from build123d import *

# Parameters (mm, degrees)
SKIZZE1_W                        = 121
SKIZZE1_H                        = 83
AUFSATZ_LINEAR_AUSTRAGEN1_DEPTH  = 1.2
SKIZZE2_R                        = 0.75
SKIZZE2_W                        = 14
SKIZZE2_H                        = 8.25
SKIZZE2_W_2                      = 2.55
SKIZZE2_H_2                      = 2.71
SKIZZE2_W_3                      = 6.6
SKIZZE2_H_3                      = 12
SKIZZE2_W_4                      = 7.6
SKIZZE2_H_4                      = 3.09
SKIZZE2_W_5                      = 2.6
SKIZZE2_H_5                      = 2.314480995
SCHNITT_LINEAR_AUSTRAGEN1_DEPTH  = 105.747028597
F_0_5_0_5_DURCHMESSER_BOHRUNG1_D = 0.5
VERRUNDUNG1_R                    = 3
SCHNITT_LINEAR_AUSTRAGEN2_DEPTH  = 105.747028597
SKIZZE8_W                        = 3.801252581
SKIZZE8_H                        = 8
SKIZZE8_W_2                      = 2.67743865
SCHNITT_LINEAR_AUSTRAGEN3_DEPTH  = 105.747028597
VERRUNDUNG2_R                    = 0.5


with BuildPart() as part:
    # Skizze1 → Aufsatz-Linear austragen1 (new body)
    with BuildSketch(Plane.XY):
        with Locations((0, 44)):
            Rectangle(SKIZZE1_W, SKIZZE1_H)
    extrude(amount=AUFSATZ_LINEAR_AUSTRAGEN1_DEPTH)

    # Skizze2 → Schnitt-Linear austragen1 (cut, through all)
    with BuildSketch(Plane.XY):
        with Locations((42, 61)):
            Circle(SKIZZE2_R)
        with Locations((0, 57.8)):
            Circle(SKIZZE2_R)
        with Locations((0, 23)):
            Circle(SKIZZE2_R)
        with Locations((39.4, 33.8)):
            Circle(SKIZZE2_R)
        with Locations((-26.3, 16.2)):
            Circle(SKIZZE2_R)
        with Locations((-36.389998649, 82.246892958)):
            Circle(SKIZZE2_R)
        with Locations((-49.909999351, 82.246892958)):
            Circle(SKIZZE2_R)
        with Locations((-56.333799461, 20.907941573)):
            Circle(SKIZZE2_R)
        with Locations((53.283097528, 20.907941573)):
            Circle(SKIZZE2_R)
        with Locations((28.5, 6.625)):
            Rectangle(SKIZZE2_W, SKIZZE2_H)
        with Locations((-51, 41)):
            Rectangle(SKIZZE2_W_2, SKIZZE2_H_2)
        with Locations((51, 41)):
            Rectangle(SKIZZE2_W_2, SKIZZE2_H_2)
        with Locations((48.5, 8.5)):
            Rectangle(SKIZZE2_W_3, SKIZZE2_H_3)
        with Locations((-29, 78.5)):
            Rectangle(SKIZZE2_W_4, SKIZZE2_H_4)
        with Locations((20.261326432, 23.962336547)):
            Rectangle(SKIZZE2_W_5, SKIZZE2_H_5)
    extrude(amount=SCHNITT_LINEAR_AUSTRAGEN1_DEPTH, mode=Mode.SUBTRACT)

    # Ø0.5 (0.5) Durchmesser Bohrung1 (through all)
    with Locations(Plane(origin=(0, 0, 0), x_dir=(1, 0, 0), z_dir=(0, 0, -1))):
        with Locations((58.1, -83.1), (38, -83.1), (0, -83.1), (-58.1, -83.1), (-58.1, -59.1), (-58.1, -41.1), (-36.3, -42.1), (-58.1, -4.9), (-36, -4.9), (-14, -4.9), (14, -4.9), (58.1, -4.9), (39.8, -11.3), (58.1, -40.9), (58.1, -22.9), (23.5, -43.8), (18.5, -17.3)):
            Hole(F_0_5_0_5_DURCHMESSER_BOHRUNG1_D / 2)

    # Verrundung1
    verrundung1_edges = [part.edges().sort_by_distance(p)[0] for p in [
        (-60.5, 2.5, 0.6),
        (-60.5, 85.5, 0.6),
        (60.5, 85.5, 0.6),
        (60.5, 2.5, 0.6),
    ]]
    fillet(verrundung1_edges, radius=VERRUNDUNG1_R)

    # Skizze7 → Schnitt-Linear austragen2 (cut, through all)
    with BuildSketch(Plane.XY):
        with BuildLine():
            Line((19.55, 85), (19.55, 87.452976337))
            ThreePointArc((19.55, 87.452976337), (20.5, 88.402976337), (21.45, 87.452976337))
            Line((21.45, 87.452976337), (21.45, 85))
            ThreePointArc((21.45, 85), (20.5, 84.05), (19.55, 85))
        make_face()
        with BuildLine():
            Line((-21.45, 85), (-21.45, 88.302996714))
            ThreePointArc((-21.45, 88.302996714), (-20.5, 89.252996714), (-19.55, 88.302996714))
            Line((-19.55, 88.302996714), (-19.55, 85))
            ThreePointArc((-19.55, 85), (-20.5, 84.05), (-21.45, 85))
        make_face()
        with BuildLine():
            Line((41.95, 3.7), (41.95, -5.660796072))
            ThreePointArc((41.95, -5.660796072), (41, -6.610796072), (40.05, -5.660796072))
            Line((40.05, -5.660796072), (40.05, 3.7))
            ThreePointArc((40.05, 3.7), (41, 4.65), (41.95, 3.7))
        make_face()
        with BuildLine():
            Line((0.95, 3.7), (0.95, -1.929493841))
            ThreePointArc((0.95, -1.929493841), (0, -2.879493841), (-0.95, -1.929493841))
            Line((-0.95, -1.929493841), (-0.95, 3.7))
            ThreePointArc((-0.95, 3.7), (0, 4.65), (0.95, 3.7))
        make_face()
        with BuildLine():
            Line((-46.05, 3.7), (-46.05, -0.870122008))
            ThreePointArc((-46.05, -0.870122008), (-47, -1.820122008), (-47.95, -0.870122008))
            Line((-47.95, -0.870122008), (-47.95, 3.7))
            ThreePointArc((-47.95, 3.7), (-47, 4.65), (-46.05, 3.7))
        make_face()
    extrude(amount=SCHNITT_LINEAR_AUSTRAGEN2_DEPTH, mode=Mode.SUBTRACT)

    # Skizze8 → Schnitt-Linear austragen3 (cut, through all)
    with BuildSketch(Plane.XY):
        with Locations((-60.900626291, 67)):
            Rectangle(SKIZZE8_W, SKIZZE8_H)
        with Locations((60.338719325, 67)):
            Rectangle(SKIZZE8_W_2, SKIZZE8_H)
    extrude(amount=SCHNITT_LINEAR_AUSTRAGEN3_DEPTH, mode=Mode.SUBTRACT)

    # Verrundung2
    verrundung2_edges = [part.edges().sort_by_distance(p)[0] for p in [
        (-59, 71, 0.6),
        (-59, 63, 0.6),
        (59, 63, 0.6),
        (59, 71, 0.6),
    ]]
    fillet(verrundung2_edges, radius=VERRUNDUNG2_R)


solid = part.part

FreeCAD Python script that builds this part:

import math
import FreeCAD as App
import Part
import Sketcher
Q = App.Units.Quantity


def edges_at(feature, points):
    """Names of the edges that pass closest to the given points."""
    edges = feature.Shape.Edges
    near = lambda p: min(range(len(edges)), key=lambda i: edges[i].distToShape(Part.Vertex(*p))[0])
    return sorted({f"Edge{near(p) + 1}" for p in points})


def add_polygon(sketch, points):
    """Adds a closed chain of lines whose ends are joined by coincident constraints."""
    first, n = sketch.GeometryCount, len(points)
    for a, b in zip(points, points[1:] + points[:1]):
        sketch.addGeometry(Part.LineSegment(App.Vector(*a, 0), App.Vector(*b, 0)), False)
    for i in range(n):
        sketch.addConstraint(Sketcher.Constraint("Coincident", first + i, 2, first + (i + 1) % n, 1))

doc = App.newDocument("Part")
body = doc.addObject("PartDesign::Body", "Body")

# Sketch on XY plane
sketch1 = doc.addObject("Sketcher::SketchObject", "Sketch")
body.addObject(sketch1)
sketch1.AttachmentSupport = (doc.XY_Plane, [""])
sketch1.MapMode = "FlatFace"
add_polygon(sketch1, [(-60.5, 85.5), (-60.5, 2.5), (60.5, 2.5), (60.5, 85.5)])  # lines 0-3
sketch1.addConstraint([
    Sketcher.Constraint("Vertical", 0),
    Sketcher.Constraint("Horizontal", 1),
    Sketcher.Constraint("Vertical", 2),
    Sketcher.Constraint("Horizontal", 3),
    Sketcher.Constraint("DistanceX", 1, 1, 1, 2, Q("121 mm")),
    Sketcher.Constraint("DistanceY", 0, 2, 0, 1, Q("83 mm")),
    Sketcher.Constraint("DistanceX", 0, 2, -1, 1, Q("60.5 mm")),
    Sketcher.Constraint("DistanceY", -1, 1, 0, 2, Q("2.5 mm")),
])
pad1 = doc.addObject("PartDesign::Pad", "Pad")
body.addObject(pad1)
pad1.Profile = sketch1
pad1.Length = 1.2

# Sketch on XY plane
sketch2 = doc.addObject("Sketcher::SketchObject", "Sketch001")
body.addObject(sketch2)
sketch2.AttachmentSupport = (doc.XY_Plane, [""])
sketch2.MapMode = "FlatFace"
sketch2.addGeometry(Part.Circle(App.Vector(42, 61, 0), App.Vector(0, 0, 1), 0.75), False)  # 0
sketch2.addGeometry(Part.Circle(App.Vector(0, 57.8, 0), App.Vector(0, 0, 1), 0.75), False)  # 1
sketch2.addGeometry(Part.Circle(App.Vector(0, 23, 0), App.Vector(0, 0, 1), 0.75), False)  # 2
sketch2.addGeometry(Part.Circle(App.Vector(39.4, 33.8, 0), App.Vector(0, 0, 1), 0.75), False)  # 3
sketch2.addGeometry(Part.Circle(App.Vector(-26.3, 16.2, 0), App.Vector(0, 0, 1), 0.75), False)  # 4
sketch2.addGeometry(Part.Circle(App.Vector(-36.389999, 82.246893, 0), App.Vector(0, 0, 1), 0.75), False)  # 5
sketch2.addGeometry(Part.Circle(App.Vector(-49.909999, 82.246893, 0), App.Vector(0, 0, 1), 0.75), False)  # 6
sketch2.addGeometry(Part.Circle(App.Vector(-56.333799, 20.907942, 0), App.Vector(0, 0, 1), 0.75), False)  # 7
sketch2.addGeometry(Part.Circle(App.Vector(53.283098, 20.907942, 0), App.Vector(0, 0, 1), 0.75), False)  # 8
add_polygon(sketch2, [(21.5, 10.75), (21.5, 2.5), (35.5, 2.5), (35.5, 10.75)])  # lines 9-12
add_polygon(sketch2, [(-52.275, 42.355), (-52.275, 39.645), (-49.725, 39.645), (-49.725, 42.355)])  # lines 13-16
add_polygon(sketch2, [(49.725, 42.355), (49.725, 39.645), (52.275, 39.645), (52.275, 42.355)])  # lines 17-20
add_polygon(sketch2, [(45.2, 14.5), (45.2, 2.5), (51.8, 2.5), (51.8, 14.5)])  # lines 21-24
add_polygon(sketch2, [(-32.8, 80.045), (-32.8, 76.955), (-25.2, 76.955), (-25.2, 80.045)])  # lines 25-28
add_polygon(sketch2, [(18.961326, 25.119577), (18.961326, 22.805096), (21.561326, 22.805096), (21.561326, 25.119577)])  # lines 29-32
sketch2.addConstraint([
    Sketcher.Constraint("Vertical", 9),
    Sketcher.Constraint("Horizontal", 10),
    Sketcher.Constraint("Vertical", 11),
    Sketcher.Constraint("Horizontal", 12),
    Sketcher.Constraint("Vertical", 13),
    Sketcher.Constraint("Horizontal", 14),
    Sketcher.Constraint("Vertical", 15),
    Sketcher.Constraint("Horizontal", 16),
    Sketcher.Constraint("Vertical", 17),
    Sketcher.Constraint("Horizontal", 18),
    Sketcher.Constraint("Vertical", 19),
    Sketcher.Constraint("Horizontal", 20),
    Sketcher.Constraint("Vertical", 21),
    Sketcher.Constraint("Horizontal", 22),
    Sketcher.Constraint("Vertical", 23),
    Sketcher.Constraint("Horizontal", 24),
    Sketcher.Constraint("Vertical", 25),
    Sketcher.Constraint("Horizontal", 26),
    Sketcher.Constraint("Vertical", 27),
    Sketcher.Constraint("Horizontal", 28),
    Sketcher.Constraint("Vertical", 29),
    Sketcher.Constraint("Horizontal", 30),
    Sketcher.Constraint("Vertical", 31),
    Sketcher.Constraint("Horizontal", 32),
    Sketcher.Constraint("Equal", 0, 1),
    Sketcher.Constraint("Equal", 1, 2),
    Sketcher.Constraint("Equal", 2, 3),
    Sketcher.Constraint("Equal", 3, 4),
    Sketcher.Constraint("Equal", 4, 5),
    Sketcher.Constraint("Equal", 5, 6),
    Sketcher.Constraint("Equal", 6, 7),
    Sketcher.Constraint("Equal", 7, 8),
    Sketcher.Constraint("Symmetric", 14, 2, 17, 2, -2),
    Sketcher.Constraint("Symmetric", 16, 2, 19, 2, -2),
    Sketcher.Constraint("PointOnObject", 1, 3, -2),
    Sketcher.Constraint("PointOnObject", 2, 3, -2),
    Sketcher.Constraint("Horizontal", 5, 3, 6, 3),
    Sketcher.Constraint("Horizontal", 7, 3, 8, 3),
    Sketcher.Constraint("Horizontal", 10, 2, 21, 2),
    Sketcher.Constraint("Diameter", 0, Q("1.5 mm")),
    Sketcher.Constraint("DistanceX", 10, 1, 10, 2, Q("14 mm")),
    Sketcher.Constraint("DistanceY", 21, 2, 21, 1, Q("12 mm")),
    Sketcher.Constraint("DistanceX", 22, 1, 22, 2, Q("6.6 mm")),
    Sketcher.Constraint("DistanceX", 26, 1, 26, 2, Q("7.6 mm")),
    Sketcher.Constraint("DistanceX", 30, 1, 30, 2, Q("2.6 mm")),
    Sketcher.Constraint("DistanceX", -1, 1, 0, 3, Q("42 mm")),
    Sketcher.Constraint("DistanceY", -1, 1, 0, 3, Q("61 mm")),
    Sketcher.Constraint("DistanceY", -1, 1, 2, 3, Q("23 mm")),
    Sketcher.Constraint("DistanceY", 3, 3, 1, 3, Q("24 mm")),
    Sketcher.Constraint("DistanceX", 14, 1, 14, 2, Q("2.55 mm")),
    Sketcher.Constraint("DistanceY", 9, 2, 9, 1, Q("8.25 mm")),
    Sketcher.Constraint("DistanceY", 13, 2, 13, 1, Q("2.71 mm")),
    Sketcher.Constraint("DistanceY", 25, 2, 25, 1, Q("3.09 mm")),
    Sketcher.Constraint("DistanceY", -1, 1, 1, 3, Q("57.8 mm")),
    Sketcher.Constraint("DistanceX", -1, 1, 3, 3, Q("39.4 mm")),
    Sketcher.Constraint("DistanceX", 4, 3, -1, 1, Q("26.3 mm")),
    Sketcher.Constraint("DistanceY", -1, 1, 4, 3, Q("16.2 mm")),
    Sketcher.Constraint("DistanceX", -1, 1, 9, 2, Q("21.5 mm")),
    Sketcher.Constraint("DistanceY", -1, 1, 9, 2, Q("2.5 mm")),
    Sketcher.Constraint("DistanceX", -1, 1, 21, 2, Q("45.2 mm")),
    Sketcher.Constraint("DistanceX", 25, 2, -1, 1, Q("32.8 mm")),
    Sketcher.Constraint("DistanceY", 15, 2, 25, 2, Q("34.6 mm")),
    Sketcher.Constraint("DistanceX", 5, 3, -1, 1, Q("36.389999 mm")),
    Sketcher.Constraint("DistanceX", 6, 3, -1, 1, Q("49.909999 mm")),
    Sketcher.Constraint("DistanceX", 13, 2, -1, 1, Q("52.275 mm")),
    Sketcher.Constraint("DistanceY", -1, 1, 13, 2, Q("39.645 mm")),
    Sketcher.Constraint("DistanceY", 29, 2, 29, 1, Q("2.314481 mm")),
    Sketcher.Constraint("DistanceX", 7, 3, -1, 1, Q("56.333799 mm")),
    Sketcher.Constraint("DistanceY", -1, 1, 7, 3, Q("20.907942 mm")),
    Sketcher.Constraint("DistanceY", 7, 3, 6, 3, Q("61.338951 mm")),
    Sketcher.Constraint("DistanceX", -1, 1, 8, 3, Q("53.283098 mm")),
    Sketcher.Constraint("DistanceX", -1, 1, 29, 2, Q("18.961326 mm")),
    Sketcher.Constraint("DistanceY", -1, 1, 29, 2, Q("22.805096 mm")),
])
pocket1 = doc.addObject("PartDesign::Pocket", "Pocket")
body.addObject(pocket1)
pocket1.Profile = sketch2
pocket1.Type = "ThroughAll"
pocket1.Reversed = True

# Sketch on XY plane
sketch3 = doc.addObject("Sketcher::SketchObject", "Sketch002")
body.addObject(sketch3)
sketch3.AttachmentSupport = (doc.XY_Plane, [""])
sketch3.MapMode = "FlatFace"
sketch3.addGeometry([
    Part.Circle(App.Vector(58.1, 83.1, 0), App.Vector(0, 0, 1), 0.25),  # 0
    Part.Circle(App.Vector(38, 83.1, 0), App.Vector(0, 0, 1), 0.25),  # 1
    Part.Circle(App.Vector(0, 83.1, 0), App.Vector(0, 0, 1), 0.25),  # 2
    Part.Circle(App.Vector(-58.1, 83.1, 0), App.Vector(0, 0, 1), 0.25),  # 3
    Part.Circle(App.Vector(-58.1, 59.1, 0), App.Vector(0, 0, 1), 0.25),  # 4
    Part.Circle(App.Vector(-58.1, 41.1, 0), App.Vector(0, 0, 1), 0.25),  # 5
    Part.Circle(App.Vector(-36.3, 42.1, 0), App.Vector(0, 0, 1), 0.25),  # 6
    Part.Circle(App.Vector(-58.1, 4.9, 0), App.Vector(0, 0, 1), 0.25),  # 7
    Part.Circle(App.Vector(-36, 4.9, 0), App.Vector(0, 0, 1), 0.25),  # 8
    Part.Circle(App.Vector(-14, 4.9, 0), App.Vector(0, 0, 1), 0.25),  # 9
    Part.Circle(App.Vector(14, 4.9, 0), App.Vector(0, 0, 1), 0.25),  # 10
    Part.Circle(App.Vector(58.1, 4.9, 0), App.Vector(0, 0, 1), 0.25),  # 11
    Part.Circle(App.Vector(39.8, 11.3, 0), App.Vector(0, 0, 1), 0.25),  # 12
    Part.Circle(App.Vector(58.1, 40.9, 0), App.Vector(0, 0, 1), 0.25),  # 13
    Part.Circle(App.Vector(58.1, 22.9, 0), App.Vector(0, 0, 1), 0.25),  # 14
    Part.Circle(App.Vector(23.5, 43.8, 0), App.Vector(0, 0, 1), 0.25),  # 15
    Part.Circle(App.Vector(18.5, 17.3, 0), App.Vector(0, 0, 1), 0.25),  # 16
], False)
sketch3.addConstraint([
    Sketcher.Constraint("Equal", 0, 1),
    Sketcher.Constraint("Equal", 1, 2),
    Sketcher.Constraint("Equal", 2, 3),
    Sketcher.Constraint("Equal", 3, 4),
    Sketcher.Constraint("Equal", 4, 5),
    Sketcher.Constraint("Equal", 5, 6),
    Sketcher.Constraint("Equal", 6, 7),
    Sketcher.Constraint("Equal", 7, 8),
    Sketcher.Constraint("Equal", 8, 9),
    Sketcher.Constraint("Equal", 9, 10),
    Sketcher.Constraint("Equal", 10, 11),
    Sketcher.Constraint("Equal", 11, 12),
    Sketcher.Constraint("Equal", 12, 13),
    Sketcher.Constraint("Equal", 13, 14),
    Sketcher.Constraint("Equal", 14, 15),
    Sketcher.Constraint("Equal", 15, 16),
    Sketcher.Constraint("Symmetric", 0, 3, 3, 3, -2),
    Sketcher.Constraint("Symmetric", 9, 3, 10, 3, -2),
    Sketcher.Constraint("Symmetric", 7, 3, 11, 3, -2),
    Sketcher.Constraint("PointOnObject", 2, 3, -2),
    Sketcher.Constraint("Horizontal", 0, 3, 1, 3),
    Sketcher.Constraint("Horizontal", 1, 3, 2, 3),
    Sketcher.Constraint("Horizontal", 7, 3, 8, 3),
    Sketcher.Constraint("Horizontal", 8, 3, 9, 3),
    Sketcher.Constraint("Vertical", 3, 3, 4, 3),
    Sketcher.Constraint("Vertical", 4, 3, 5, 3),
    Sketcher.Constraint("Vertical", 5, 3, 7, 3),
    Sketcher.Constraint("Vertical", 11, 3, 13, 3),
    Sketcher.Constraint("Vertical", 13, 3, 14, 3),
    Sketcher.Constraint("Diameter", 0, Q("0.5 mm")),
    Sketcher.Constraint("DistanceX", -1, 1, 1, 3, Q("38 mm")),
    Sketcher.Constraint("DistanceX", 8, 3, -1, 1, Q("36 mm")),
    Sketcher.Constraint("DistanceX", 9, 3, -1, 1, Q("14 mm")),
    Sketcher.Constraint("DistanceY", 4, 3, 3, 3, Q("24 mm")),
    Sketcher.Constraint("DistanceY", 5, 3, 4, 3, Q("18 mm")),
    Sketcher.Constraint("DistanceY", 5, 3, 6, 3, Q("1 mm")),
    Sketcher.Constraint("DistanceY", 11, 3, 13, 3, Q("36 mm")),
    Sketcher.Constraint("DistanceY", 11, 3, 14, 3, Q("18 mm")),
    Sketcher.Constraint("DistanceY", 12, 3, 16, 3, Q("6 mm")),
    Sketcher.Constraint("DistanceX", 16, 3, 15, 3, Q("5 mm")),
    Sketcher.Constraint("DistanceX", -1, 1, 0, 3, Q("58.1 mm")),
    Sketcher.Constraint("DistanceY", -1, 1, 0, 3, Q("83.1 mm")),
    Sketcher.Constraint("DistanceX", 6, 3, -1, 1, Q("36.3 mm")),
    Sketcher.Constraint("DistanceY", -1, 1, 7, 3, Q("4.9 mm")),
    Sketcher.Constraint("DistanceX", -1, 1, 12, 3, Q("39.8 mm")),
    Sketcher.Constraint("DistanceY", -1, 1, 12, 3, Q("11.3 mm")),
    Sketcher.Constraint("DistanceX", -1, 1, 15, 3, Q("23.5 mm")),
    Sketcher.Constraint("DistanceY", -1, 1, 15, 3, Q("43.8 mm")),
])
doc.recompute()
hole = doc.addObject("PartDesign::Hole", "Hole")
body.addObject(hole)
hole.Profile = sketch3
hole.ThreadType = "None"
hole.Diameter = 0.5
hole.DepthType = "ThroughAll"
hole.Reversed = True
doc.recompute()

fillet = doc.addObject("PartDesign::Fillet", "Fillet")
body.addObject(fillet)
fillet.Base = (hole, edges_at(hole, [
    (-60.5, 2.5, 0.6),
    (-60.5, 85.5, 0.6),
    (60.5, 85.5, 0.6),
    (60.5, 2.5, 0.6),
]))
fillet.Radius = 3

# Sketch on XY plane
sketch4 = doc.addObject("Sketcher::SketchObject", "Sketch003")
body.addObject(sketch4)
sketch4.AttachmentSupport = (doc.XY_Plane, [""])
sketch4.MapMode = "FlatFace"
sketch4.addGeometry([
    Part.LineSegment(App.Vector(19.55, 87.452976, 0), App.Vector(19.55, 85, 0)),  # 0
    Part.ArcOfCircle(Part.Circle(App.Vector(20.5, 85, 0), App.Vector(0, 0, 1), 0.95), math.radians(180), math.radians(360)),  # 1
    Part.LineSegment(App.Vector(21.45, 85, 0), App.Vector(21.45, 87.452976, 0)),  # 2
    Part.ArcOfCircle(Part.Circle(App.Vector(20.5, 87.452976, 0), App.Vector(0, 0, 1), 0.95), math.radians(0), math.radians(180)),  # 3
    Part.LineSegment(App.Vector(-21.45, 88.302997, 0), App.Vector(-21.45, 85, 0)),  # 4
    Part.ArcOfCircle(Part.Circle(App.Vector(-20.5, 85, 0), App.Vector(0, 0, 1), 0.95), math.radians(180), math.radians(360)),  # 5
    Part.LineSegment(App.Vector(-19.55, 85, 0), App.Vector(-19.55, 88.302997, 0)),  # 6
    Part.ArcOfCircle(Part.Circle(App.Vector(-20.5, 88.302997, 0), App.Vector(0, 0, 1), 0.95), math.radians(0), math.radians(180)),  # 7
    Part.LineSegment(App.Vector(41.95, -5.660796, 0), App.Vector(41.95, 3.7, 0)),  # 8
    Part.ArcOfCircle(Part.Circle(App.Vector(41, 3.7, 0), App.Vector(0, 0, 1), 0.95), math.radians(0), math.radians(180)),  # 9
    Part.LineSegment(App.Vector(40.05, 3.7, 0), App.Vector(40.05, -5.660796, 0)),  # 10
    Part.ArcOfCircle(Part.Circle(App.Vector(41, -5.660796, 0), App.Vector(0, 0, 1), 0.95), math.radians(180), math.radians(360)),  # 11
    Part.LineSegment(App.Vector(0.95, -1.929494, 0), App.Vector(0.95, 3.7, 0)),  # 12
    Part.ArcOfCircle(Part.Circle(App.Vector(0, 3.7, 0), App.Vector(0, 0, 1), 0.95), math.radians(0), math.radians(180)),  # 13
    Part.LineSegment(App.Vector(-0.95, 3.7, 0), App.Vector(-0.95, -1.929494, 0)),  # 14
    Part.ArcOfCircle(Part.Circle(App.Vector(0, -1.929494, 0), App.Vector(0, 0, 1), 0.95), math.radians(180), math.radians(360)),  # 15
    Part.LineSegment(App.Vector(-46.05, -0.870122, 0), App.Vector(-46.05, 3.7, 0)),  # 16
    Part.ArcOfCircle(Part.Circle(App.Vector(-47, 3.7, 0), App.Vector(0, 0, 1), 0.95), math.radians(0), math.radians(180)),  # 17
    Part.LineSegment(App.Vector(-47.95, 3.7, 0), App.Vector(-47.95, -0.870122, 0)),  # 18
    Part.ArcOfCircle(Part.Circle(App.Vector(-47, -0.870122, 0), App.Vector(0, 0, 1), 0.95), math.radians(180), math.radians(360)),  # 19
], False)
sketch4.addConstraint([
    Sketcher.Constraint("Tangent", 0, 2, 1, 1),
    Sketcher.Constraint("Tangent", 1, 2, 2, 1),
    Sketcher.Constraint("Tangent", 2, 2, 3, 1),
    Sketcher.Constraint("Tangent", 3, 2, 0, 1),
    Sketcher.Constraint("Tangent", 4, 2, 5, 1),
    Sketcher.Constraint("Tangent", 5, 2, 6, 1),
    Sketcher.Constraint("Tangent", 6, 2, 7, 1),
    Sketcher.Constraint("Tangent", 7, 2, 4, 1),
    Sketcher.Constraint("Tangent", 8, 2, 9, 1),
    Sketcher.Constraint("Tangent", 9, 2, 10, 1),
    Sketcher.Constraint("Tangent", 10, 2, 11, 1),
    Sketcher.Constraint("Tangent", 11, 2, 8, 1),
    Sketcher.Constraint("Tangent", 12, 2, 13, 1),
    Sketcher.Constraint("Tangent", 13, 2, 14, 1),
    Sketcher.Constraint("Tangent", 14, 2, 15, 1),
    Sketcher.Constraint("Tangent", 15, 2, 12, 1),
    Sketcher.Constraint("Tangent", 16, 2, 17, 1),
    Sketcher.Constraint("Tangent", 17, 2, 18, 1),
    Sketcher.Constraint("Tangent", 18, 2, 19, 1),
    Sketcher.Constraint("Tangent", 19, 2, 16, 1),
    Sketcher.Constraint("Vertical", 0),
    Sketcher.Constraint("Vertical", 2),
    Sketcher.Constraint("Vertical", 4),
    Sketcher.Constraint("Vertical", 6),
    Sketcher.Constraint("Vertical", 8),
    Sketcher.Constraint("Vertical", 10),
    Sketcher.Constraint("Vertical", 12),
    Sketcher.Constraint("Vertical", 14),
    Sketcher.Constraint("Vertical", 16),
    Sketcher.Constraint("Vertical", 18),
    Sketcher.Constraint("Equal", 3, 5),
    Sketcher.Constraint("Equal", 7, 9),
    Sketcher.Constraint("Equal", 11, 13),
    Sketcher.Constraint("Equal", 15, 17),
    Sketcher.Constraint("Symmetric", 1, 3, 5, 3, -2),
    Sketcher.Constraint("PointOnObject", 13, 3, -2),
    Sketcher.Constraint("Horizontal", 9, 3, 13, 3),
    Sketcher.Constraint("Horizontal", 13, 3, 17, 3),
    Sketcher.Constraint("Radius", 1, Q("0.95 mm")),
    Sketcher.Constraint("DistanceY", -1, 1, 1, 3, Q("85 mm")),
    Sketcher.Constraint("DistanceX", -1, 1, 9, 3, Q("41 mm")),
    Sketcher.Constraint("DistanceX", 17, 3, -1, 1, Q("47 mm")),
    Sketcher.Constraint("DistanceX", 5, 3, 1, 3, Q("41 mm")),
    Sketcher.Constraint("DistanceY", -1, 1, 9, 3, Q("3.7 mm")),
    Sketcher.Constraint("DistanceY", 0, 2, 0, 1, Q("2.452976 mm")),
    Sketcher.Constraint("DistanceY", 4, 2, 4, 1, Q("3.302997 mm")),
    Sketcher.Constraint("DistanceY", 8, 1, 8, 2, Q("9.360796 mm")),
    Sketcher.Constraint("DistanceY", 12, 1, 12, 2, Q("5.629494 mm")),
    Sketcher.Constraint("DistanceY", 16, 1, 16, 2, Q("4.570122 mm")),
])
pocket2 = doc.addObject("PartDesign::Pocket", "Pocket001")
body.addObject(pocket2)
pocket2.Profile = sketch4
pocket2.Type = "ThroughAll"
pocket2.Reversed = True

# Sketch on XY plane
sketch5 = doc.addObject("Sketcher::SketchObject", "Sketch004")
body.addObject(sketch5)
sketch5.AttachmentSupport = (doc.XY_Plane, [""])
sketch5.MapMode = "FlatFace"
add_polygon(sketch5, [(-62.801253, 71), (-62.801253, 63), (-59, 63), (-59, 71)])  # lines 0-3
add_polygon(sketch5, [(59, 71), (59, 63), (61.677439, 63), (61.677439, 71)])  # lines 4-7
sketch5.addConstraint([
    Sketcher.Constraint("Vertical", 0),
    Sketcher.Constraint("Horizontal", 1),
    Sketcher.Constraint("Vertical", 2),
    Sketcher.Constraint("Horizontal", 3),
    Sketcher.Constraint("Vertical", 4),
    Sketcher.Constraint("Horizontal", 5),
    Sketcher.Constraint("Vertical", 6),
    Sketcher.Constraint("Horizontal", 7),
    Sketcher.Constraint("Symmetric", 1, 2, 4, 2, -2),
    Sketcher.Constraint("Horizontal", 3, 2, 6, 2),
    Sketcher.Constraint("DistanceY", 0, 2, 0, 1, Q("8 mm")),
    Sketcher.Constraint("DistanceY", -1, 1, 0, 2, Q("63 mm")),
    Sketcher.Constraint("DistanceX", 1, 2, -1, 1, Q("59 mm")),
    Sketcher.Constraint("DistanceX", 5, 1, 5, 2, Q("2.677439 mm")),
    Sketcher.Constraint("DistanceX", 1, 1, 1, 2, Q("3.801253 mm")),
])
pocket3 = doc.addObject("PartDesign::Pocket", "Pocket002")
body.addObject(pocket3)
pocket3.Profile = sketch5
pocket3.Type = "ThroughAll"
pocket3.Reversed = True
doc.recompute()

fillet2 = doc.addObject("PartDesign::Fillet", "Fillet001")
body.addObject(fillet2)
fillet2.Base = (pocket3, edges_at(pocket3, [
    (-59, 71, 0.6),
    (-59, 63, 0.6),
    (59, 63, 0.6),
    (59, 71, 0.6),
]))
fillet2.Radius = 0.5

doc.recompute()
